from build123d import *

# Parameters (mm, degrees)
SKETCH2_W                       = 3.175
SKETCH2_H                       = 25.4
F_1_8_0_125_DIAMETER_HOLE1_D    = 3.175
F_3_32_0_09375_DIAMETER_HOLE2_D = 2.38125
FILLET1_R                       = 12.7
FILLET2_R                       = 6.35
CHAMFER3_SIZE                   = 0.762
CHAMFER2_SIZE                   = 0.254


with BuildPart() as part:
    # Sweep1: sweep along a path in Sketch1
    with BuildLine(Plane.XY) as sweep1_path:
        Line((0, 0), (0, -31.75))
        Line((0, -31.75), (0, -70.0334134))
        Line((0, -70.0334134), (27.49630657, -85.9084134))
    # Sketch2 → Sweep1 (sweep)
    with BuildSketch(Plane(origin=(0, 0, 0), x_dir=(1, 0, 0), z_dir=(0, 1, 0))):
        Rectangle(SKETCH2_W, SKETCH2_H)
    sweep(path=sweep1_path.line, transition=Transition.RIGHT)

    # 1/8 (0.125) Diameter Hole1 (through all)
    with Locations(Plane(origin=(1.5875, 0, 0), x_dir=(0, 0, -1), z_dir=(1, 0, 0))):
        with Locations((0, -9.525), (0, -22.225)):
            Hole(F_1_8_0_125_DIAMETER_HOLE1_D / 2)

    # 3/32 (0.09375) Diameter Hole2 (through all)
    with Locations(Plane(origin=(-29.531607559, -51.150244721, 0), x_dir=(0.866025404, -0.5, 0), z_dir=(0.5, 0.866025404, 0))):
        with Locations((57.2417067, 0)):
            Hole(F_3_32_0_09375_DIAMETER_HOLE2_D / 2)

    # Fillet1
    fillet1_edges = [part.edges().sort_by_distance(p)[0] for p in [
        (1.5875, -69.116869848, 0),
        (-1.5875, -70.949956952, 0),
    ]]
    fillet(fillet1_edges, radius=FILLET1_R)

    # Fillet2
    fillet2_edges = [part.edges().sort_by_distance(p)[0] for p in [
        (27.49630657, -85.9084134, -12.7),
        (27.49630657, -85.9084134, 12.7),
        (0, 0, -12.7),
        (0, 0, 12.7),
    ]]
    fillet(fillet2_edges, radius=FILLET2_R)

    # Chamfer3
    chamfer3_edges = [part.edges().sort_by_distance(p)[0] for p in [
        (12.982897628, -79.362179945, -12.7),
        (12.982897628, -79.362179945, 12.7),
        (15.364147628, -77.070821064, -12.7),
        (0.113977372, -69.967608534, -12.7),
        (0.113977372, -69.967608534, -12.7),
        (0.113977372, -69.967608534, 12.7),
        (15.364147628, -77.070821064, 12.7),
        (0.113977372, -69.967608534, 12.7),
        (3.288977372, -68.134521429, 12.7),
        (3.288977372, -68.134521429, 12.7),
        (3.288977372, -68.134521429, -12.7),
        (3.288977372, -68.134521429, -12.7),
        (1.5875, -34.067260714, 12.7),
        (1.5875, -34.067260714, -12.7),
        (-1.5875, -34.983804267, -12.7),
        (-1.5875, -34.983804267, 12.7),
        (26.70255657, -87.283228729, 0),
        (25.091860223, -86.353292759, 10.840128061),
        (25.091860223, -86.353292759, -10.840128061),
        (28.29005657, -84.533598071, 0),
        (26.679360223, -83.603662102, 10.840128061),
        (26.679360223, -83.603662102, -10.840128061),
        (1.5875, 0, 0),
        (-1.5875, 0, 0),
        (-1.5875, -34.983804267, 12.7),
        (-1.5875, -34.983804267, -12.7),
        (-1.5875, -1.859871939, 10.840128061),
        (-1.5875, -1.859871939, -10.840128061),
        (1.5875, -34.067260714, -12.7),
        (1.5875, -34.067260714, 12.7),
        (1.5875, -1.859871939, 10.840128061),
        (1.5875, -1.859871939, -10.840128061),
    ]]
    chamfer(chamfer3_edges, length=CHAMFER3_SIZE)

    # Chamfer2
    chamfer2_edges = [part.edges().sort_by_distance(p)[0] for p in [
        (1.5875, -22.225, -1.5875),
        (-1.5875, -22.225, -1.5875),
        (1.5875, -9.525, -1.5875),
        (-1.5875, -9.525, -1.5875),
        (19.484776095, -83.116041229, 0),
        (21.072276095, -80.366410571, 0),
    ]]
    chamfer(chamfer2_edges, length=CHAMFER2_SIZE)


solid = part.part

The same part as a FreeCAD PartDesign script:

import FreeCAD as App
import Part
import Sketcher

V = App.Vector
Q = App.Units.Quantity


def edges_at(feature, points):
    """Names of the edges that pass closest to the given points."""
    edges = feature.Shape.Edges
    near = lambda p: min(range(len(edges)), key=lambda i: edges[i].distToShape(Part.Vertex(*p))[0])
    return sorted({f"Edge{near(p) + 1}" for p in points})

doc = App.newDocument("Part")
params = doc.addObject("Spreadsheet::Sheet", "Params")
for row, (alias, value) in enumerate([
    ("sketch1_height", "1 in"),
    ("sketch1_width", "0.125 in"),
    ("sketch2_length", "1.25 in"),
    ("sketch3_diameter", "0.125 in"),
    ("hole_diameter", "0.125 in"),
    ("sketch4_diameter", "0.09375 in"),
    ("hole2_diameter", "0.09375 in"),
    ("fillet_radius", "0.5 in"),
    ("fillet2_radius", "0.25 in"),
    ("chamfer_size", "0.03 in"),
    ("chamfer2_size", "0.01 in"),
], start=1):
    params.set(f"A{row}", alias)
    params.set(f"B{row}", "=" + value)
    params.setAlias(f"B{row}", alias)

body = doc.addObject("PartDesign::Body", "Body")

sketch1 = body.newObject("Sketcher::SketchObject", "Sketch")
sketch1.AttachmentSupport = (doc.getObject("XZ_Plane"), [""])
sketch1.MapMode = "FlatFace"
sketch1.addGeometry([
    Part.LineSegment(V(-1.6, -12.7, 0), V(-1.6, 12.7, 0)),
    Part.LineSegment(V(-1.6, 12.7, 0), V(1.6, 12.7, 0)),
    Part.LineSegment(V(1.6, 12.7, 0), V(1.6, -12.7, 0)),
    Part.LineSegment(V(1.6, -12.7, 0), V(-1.6, -12.7, 0)),
], False)
sketch1.addConstraint([
    Sketcher.Constraint("Coincident", 0, 2, 1, 1),
    Sketcher.Constraint("Coincident", 1, 2, 2, 1),
    Sketcher.Constraint("Coincident", 2, 2, 3, 1),
    Sketcher.Constraint("Coincident", 3, 2, 0, 1),
    Sketcher.Constraint("Vertical", 0),
    Sketcher.Constraint("Horizontal", 1),
    Sketcher.Constraint("Vertical", 2),
    Sketcher.Constraint("Horizontal", 3),
    Sketcher.Constraint("Symmetric", 0, 2, 2, 2, -1, 1),
    Sketcher.Constraint("DistanceY", 0, 1, 0, 2, Q("1 in")),
    Sketcher.Constraint("DistanceX", 1, 1, 1, 2, Q("0.125 in")),
])
sketch1.setExpression("Constraints[9]", "Params.sketch1_height")
sketch1.setExpression("Constraints[10]", "Params.sketch1_width")

sketch2 = body.newObject("Sketcher::SketchObject", "Sketch001")
sketch2.AttachmentSupport = (doc.getObject("XY_Plane"), [""])
sketch2.MapMode = "FlatFace"
sketch2.addGeometry([
    Part.LineSegment(V(0, 0, 0), V(0, -70, 0)),
    Part.LineSegment(V(0, -70, 0), V(27, -86, 0)),
], False)
sketch2.addConstraint([
    Sketcher.Constraint("Coincident", 0, 2, 1, 1),
    Sketcher.Constraint("Vertical", 0),
    Sketcher.Constraint("Coincident", 0, 1, -1, 1),
    Sketcher.Constraint("Angle", 1, Q("-30 deg")),
    Sketcher.Constraint("Distance", 1, Q("1.25 in")),
    Sketcher.Constraint("DistanceY", 0, 2, 0, 1, 70.033413),
])
sketch2.setExpression("Constraints[4]", "Params.sketch2_length")
doc.recompute()

additivepipe = body.newObject("PartDesign::AdditivePipe", "AdditivePipe")
additivepipe.Profile = sketch1
additivepipe.Spine = (sketch2, ["Edge1", "Edge2"])
additivepipe.Transition = "Right corner"

sketch3 = body.newObject("Sketcher::SketchObject", "Sketch002")
sketch3.AttachmentSupport = (doc.getObject("YZ_Plane"), [""])
sketch3.MapMode = "FlatFace"
sketch3.AttachmentOffset = App.Placement(V(0, 0, 0.0625 * 25.4), App.Rotation())
sketch3.addGeometry([
    Part.Circle(V(-9.5, 0, 0), V(0, 0, 1), 1.6),
    Part.Circle(V(-22.2, 0, 0), V(0, 0, 1), 1.6),
], False)
sketch3.addConstraint([
    Sketcher.Constraint("Equal", 0, 1),
    Sketcher.Constraint("PointOnObject", 0, 3, -1),
    Sketcher.Constraint("PointOnObject", 1, 3, -1),
    Sketcher.Constraint("Diameter", 0, Q("0.125 in")),
    Sketcher.Constraint("DistanceX", 1, 3, 0, 3, Q("0.5 in")),
    Sketcher.Constraint("DistanceX", 0, 3, -1, 1, Q("0.375 in")),
])
sketch3.setExpression("Constraints[3]", "Params.sketch3_diameter")
doc.recompute()
hole = body.newObject("PartDesign::Hole", "Hole")
hole.Profile = sketch3
hole.ThreadType = "None"
hole.setExpression("Diameter", "Params.hole_diameter")
hole.DepthType = "ThroughAll"

sketch4 = body.newObject("Sketcher::SketchObject", "Sketch003")
sketch4.Placement = App.Placement(V(-29.531608, -51.150245, 0), App.Rotation(V(0.866025404, -0.5, 0), V(0, 0, -1), V(0.5, 0.866025404, 0), "ZXY"))
sketch4.addGeometry(Part.Circle(V(57.2, 0, 0), V(0, 0, 1), 1.2), False)
sketch4.addConstraint([
    Sketcher.Constraint("PointOnObject", 0, 3, -1),
    Sketcher.Constraint("Diameter", 0, Q("0.09375 in")),
    Sketcher.Constraint("DistanceX", -1, 1, 0, 3, 57.241707),
])
sketch4.setExpression("Constraints[1]", "Params.sketch4_diameter")
doc.recompute()
hole2 = body.newObject("PartDesign::Hole", "Hole001")
hole2.Profile = sketch4
hole2.ThreadType = "None"
hole2.setExpression("Diameter", "Params.hole2_diameter")
hole2.DepthType = "ThroughAll"
doc.recompute()

fillet = body.newObject("PartDesign::Fillet", "Fillet")
fillet.Base = (hole2, edges_at(hole2, [(1.587, -69.117, 0), (-1.587, -70.95, 0)]))
fillet.setExpression("Radius", "Params.fillet_radius")
doc.recompute()

fillet2 = body.newObject("PartDesign::Fillet", "Fillet001")
fillet2.Base = (fillet, edges_at(fillet, [
    (27.496, -85.908, -12.7),
    (27.496, -85.908, 12.7),
    (0, 0, -12.7),
    (0, 0, 12.7),
]))
fillet2.setExpression("Radius", "Params.fillet2_radius")
doc.recompute()

chamfer = body.newObject("PartDesign::Chamfer", "Chamfer")
chamfer.Base = (fillet2, edges_at(fillet2, [
    (12.983, -79.362, -12.7),
    (12.983, -79.362, 12.7),
    (15.364, -77.071, -12.7),
    (0.114, -69.968, -12.7),
    (0.114, -69.968, -12.7),
    (0.114, -69.968, 12.7),
    (15.364, -77.071, 12.7),
    (0.114, -69.968, 12.7),
    (3.289, -68.135, 12.7),
    (3.289, -68.135, 12.7),
    (3.289, -68.135, -12.7),
    (3.289, -68.135, -12.7),
    (1.587, -34.067, 12.7),
    (1.587, -34.067, -12.7),
    (-1.587, -34.984, -12.7),
    (-1.587, -34.984, 12.7),
    (26.703, -87.283, 0),
    (25.092, -86.353, 10.84),
    (25.092, -86.353, -10.84),
    (28.29, -84.534, 0),
    (26.679, -83.604, 10.84),
    (26.679, -83.604, -10.84),
    (1.587, 0, 0),
    (-1.587, 0, 0),
    (-1.587, -34.984, 12.7),
    (-1.587, -34.984, -12.7),
    (-1.587, -1.86, 10.84),
    (-1.587, -1.86, -10.84),
    (1.587, -34.067, -12.7),
    (1.587, -34.067, 12.7),
    (1.587, -1.86, 10.84),
    (1.587, -1.86, -10.84),
]))
chamfer.setExpression("Size", "Params.chamfer_size")
doc.recompute()

chamfer2 = body.newObject("PartDesign::Chamfer", "Chamfer001")
chamfer2.Base = (chamfer, edges_at(chamfer, [
    (1.587, -22.225, -1.587),
    (-1.587, -22.225, -1.587),
    (1.587, -9.525, -1.587),
    (-1.587, -9.525, -1.587),
    (19.485, -83.116, 0),
    (21.072, -80.366, 0),
]))
chamfer2.setExpression("Size", "Params.chamfer2_size")

doc.recompute()
